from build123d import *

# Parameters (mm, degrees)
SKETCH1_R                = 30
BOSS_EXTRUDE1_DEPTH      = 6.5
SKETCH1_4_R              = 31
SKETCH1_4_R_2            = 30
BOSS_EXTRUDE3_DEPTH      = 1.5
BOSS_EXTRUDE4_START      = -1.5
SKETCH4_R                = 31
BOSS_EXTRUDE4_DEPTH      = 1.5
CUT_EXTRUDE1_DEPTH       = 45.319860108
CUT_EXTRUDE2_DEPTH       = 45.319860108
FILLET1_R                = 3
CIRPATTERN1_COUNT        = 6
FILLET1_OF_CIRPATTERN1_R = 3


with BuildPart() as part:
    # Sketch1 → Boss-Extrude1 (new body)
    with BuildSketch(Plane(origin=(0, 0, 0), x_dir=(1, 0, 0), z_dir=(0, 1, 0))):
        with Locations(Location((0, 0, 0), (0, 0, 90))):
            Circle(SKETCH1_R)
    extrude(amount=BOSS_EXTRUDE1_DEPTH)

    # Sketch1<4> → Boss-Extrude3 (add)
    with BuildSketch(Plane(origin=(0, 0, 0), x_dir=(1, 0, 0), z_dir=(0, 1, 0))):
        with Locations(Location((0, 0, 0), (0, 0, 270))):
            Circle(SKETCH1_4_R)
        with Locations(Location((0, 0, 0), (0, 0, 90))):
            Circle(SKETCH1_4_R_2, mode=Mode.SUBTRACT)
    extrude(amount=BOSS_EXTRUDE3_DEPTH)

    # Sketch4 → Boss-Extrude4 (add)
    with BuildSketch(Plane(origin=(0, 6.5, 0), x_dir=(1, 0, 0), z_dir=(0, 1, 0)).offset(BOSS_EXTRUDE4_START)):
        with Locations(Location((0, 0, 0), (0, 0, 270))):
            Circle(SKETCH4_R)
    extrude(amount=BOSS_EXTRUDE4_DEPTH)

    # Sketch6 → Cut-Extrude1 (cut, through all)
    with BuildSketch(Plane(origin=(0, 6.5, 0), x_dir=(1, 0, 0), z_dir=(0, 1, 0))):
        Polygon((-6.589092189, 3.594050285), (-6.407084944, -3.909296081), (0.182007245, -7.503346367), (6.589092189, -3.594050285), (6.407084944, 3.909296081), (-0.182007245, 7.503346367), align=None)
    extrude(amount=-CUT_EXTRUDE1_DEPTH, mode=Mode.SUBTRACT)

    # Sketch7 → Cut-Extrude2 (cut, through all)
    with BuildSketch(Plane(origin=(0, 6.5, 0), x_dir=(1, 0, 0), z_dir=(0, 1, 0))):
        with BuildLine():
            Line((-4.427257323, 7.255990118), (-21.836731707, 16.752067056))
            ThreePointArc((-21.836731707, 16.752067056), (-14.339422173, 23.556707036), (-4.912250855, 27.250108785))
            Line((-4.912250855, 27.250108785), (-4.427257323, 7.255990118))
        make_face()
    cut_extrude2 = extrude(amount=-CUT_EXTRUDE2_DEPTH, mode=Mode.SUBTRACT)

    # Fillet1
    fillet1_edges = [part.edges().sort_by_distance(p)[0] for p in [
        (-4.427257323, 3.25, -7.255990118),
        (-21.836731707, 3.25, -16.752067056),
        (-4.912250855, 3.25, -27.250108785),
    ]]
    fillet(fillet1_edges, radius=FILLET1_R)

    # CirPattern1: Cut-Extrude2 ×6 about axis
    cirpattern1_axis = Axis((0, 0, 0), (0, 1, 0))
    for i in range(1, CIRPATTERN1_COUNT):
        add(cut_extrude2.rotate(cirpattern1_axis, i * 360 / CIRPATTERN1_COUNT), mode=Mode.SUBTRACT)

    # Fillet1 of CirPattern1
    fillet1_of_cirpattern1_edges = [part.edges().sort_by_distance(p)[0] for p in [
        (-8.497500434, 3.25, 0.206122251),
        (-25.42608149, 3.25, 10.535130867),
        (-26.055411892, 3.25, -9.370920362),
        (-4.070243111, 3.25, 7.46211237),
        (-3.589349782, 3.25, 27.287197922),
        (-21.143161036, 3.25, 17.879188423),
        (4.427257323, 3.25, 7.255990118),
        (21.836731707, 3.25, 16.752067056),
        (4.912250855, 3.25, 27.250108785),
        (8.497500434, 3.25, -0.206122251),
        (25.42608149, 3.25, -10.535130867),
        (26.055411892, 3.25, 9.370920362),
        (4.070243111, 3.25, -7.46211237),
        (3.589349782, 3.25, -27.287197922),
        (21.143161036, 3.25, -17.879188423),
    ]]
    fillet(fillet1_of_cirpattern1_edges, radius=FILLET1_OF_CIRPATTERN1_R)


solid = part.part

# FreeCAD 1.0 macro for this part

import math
import FreeCAD as App
import Part
import Sketcher


def edges_at(feature, points):
    """Names of the edges that pass closest to the given points."""
    edges = feature.Shape.Edges
    near = lambda p: min(range(len(edges)), key=lambda i: edges[i].distToShape(Part.Vertex(*p))[0])
    return sorted({f"Edge{near(p) + 1}" for p in points})


def add_polygon(sketch, points):
    """Adds a closed chain of lines whose ends are joined by coincident constraints."""
    first, n = sketch.GeometryCount, len(points)
    for a, b in zip(points, points[1:] + points[:1]):
        sketch.addGeometry(Part.LineSegment(App.Vector(*a, 0), App.Vector(*b, 0)), False)
    for i in range(n):
        sketch.addConstraint(Sketcher.Constraint("Coincident", first + i, 2, first + (i + 1) % n, 1))

doc = App.newDocument("Part")
body = doc.addObject("PartDesign::Body", "Body")

sketch1 = doc.addObject("Sketcher::SketchObject", "Sketch")
body.addObject(sketch1)
sketch1.AttachmentSupport = (doc.XZ_Plane, [""])
sketch1.MapMode = "FlatFace"
sketch1.addGeometry(Part.Circle(App.Vector(0, 0, 0), App.Vector(0, 0, 1), 30), False)
sketch1.addConstraint([
    Sketcher.Constraint("Coincident", 0, 3, -1, 1),
    Sketcher.Constraint("Diameter", 0, 60.0),
])
pad1 = doc.addObject("PartDesign::Pad", "Pad")
body.addObject(pad1)
pad1.Profile = sketch1
pad1.Length = 6.5
pad1.Reversed = True

sketch2 = doc.addObject("Sketcher::SketchObject", "Sketch001")
body.addObject(sketch2)
sketch2.AttachmentSupport = (doc.XZ_Plane, [""])
sketch2.MapMode = "FlatFace"
sketch2.addGeometry([
    Part.Circle(App.Vector(0, 0, 0), App.Vector(0, 0, 1), 31),
    Part.Circle(App.Vector(0, 0, 0), App.Vector(0, 0, 1), 30),
], False)
sketch2.addConstraint([
    Sketcher.Constraint("Coincident", 0, 3, -1, 1),
    Sketcher.Constraint("Coincident", 1, 3, -1, 1),
    Sketcher.Constraint("Diameter", 0, 62.0),
    Sketcher.Constraint("Diameter", 1, 60.0),
])
pad2 = doc.addObject("PartDesign::Pad", "Pad001")
body.addObject(pad2)
pad2.Profile = sketch2
pad2.Length = 1.5
pad2.Reversed = True

sketch3 = doc.addObject("Sketcher::SketchObject", "Sketch002")
body.addObject(sketch3)
sketch3.AttachmentSupport = (doc.XZ_Plane, [""])
sketch3.MapMode = "FlatFace"
sketch3.AttachmentOffset = App.Placement(App.Vector(0, 0, -5), App.Rotation())
sketch3.addGeometry(Part.Circle(App.Vector(0, 0, 0), App.Vector(0, 0, 1), 31), False)
sketch3.addConstraint([
    Sketcher.Constraint("Coincident", 0, 3, -1, 1),
    Sketcher.Constraint("Diameter", 0, 62.0),
])
pad3 = doc.addObject("PartDesign::Pad", "Pad002")
body.addObject(pad3)
pad3.Profile = sketch3
pad3.Length = 1.5
pad3.Reversed = True

sketch4 = doc.addObject("Sketcher::SketchObject", "Sketch003")
body.addObject(sketch4)
sketch4.AttachmentSupport = (doc.XZ_Plane, [""])
sketch4.MapMode = "FlatFace"
sketch4.AttachmentOffset = App.Placement(App.Vector(0, 0, -6.5), App.Rotation())
add_polygon(sketch4, [(-6.589092, -3.59405), (-6.407085, 3.909296), (0.182007, 7.503346), (6.589092, 3.59405), (6.407085, -3.909296), (-0.182007, -7.503346)])
sketch4.addConstraint([
    Sketcher.Constraint("Symmetric", 0, 2, 3, 2, -1, 1),
    Sketcher.Constraint("Symmetric", 1, 2, 4, 2, -1, 1),
    Sketcher.Constraint("Symmetric", 2, 2, 5, 2, -1, 1),
    Sketcher.Constraint("Equal", 0, 1),
    Sketcher.Constraint("Equal", 1, 2),
    Sketcher.Constraint("DistanceX", 4, 2, 2, 2, 6.771099),
    Sketcher.Constraint("DistanceY", 5, 2, 2, 2, 7.188101),
    Sketcher.Constraint("DistanceY", 0, 2, 1, 2, 3.59405),
    Sketcher.Constraint("DistanceX", 0, 2, 3, 2, 12.81417),
])
pocket1 = doc.addObject("PartDesign::Pocket", "Pocket")
body.addObject(pocket1)
pocket1.Profile = sketch4
pocket1.Type = "ThroughAll"
pocket1.Reversed = True

sketch5 = doc.addObject("Sketcher::SketchObject", "Sketch004")
body.addObject(sketch5)
sketch5.AttachmentSupport = (doc.XZ_Plane, [""])
sketch5.MapMode = "FlatFace"
sketch5.AttachmentOffset = App.Placement(App.Vector(0, 0, -6.5), App.Rotation())
sketch5.addGeometry([
    Part.LineSegment(App.Vector(-21.836732, -16.752067, 0), App.Vector(-4.427257, -7.25599, 0)),
    Part.LineSegment(App.Vector(-4.427257, -7.25599, 0), App.Vector(-4.912251, -27.250109, 0)),
    Part.ArcOfCircle(Part.Circle(App.Vector(0.419827, 0.237506, 0), App.Vector(0, 0, 1), 28), math.radians(-142.64365), math.radians(-100.977959)),
], False)
sketch5.addConstraint([
    Sketcher.Constraint("Coincident", 0, 2, 1, 1),
    Sketcher.Constraint("Coincident", 1, 2, 2, 2),
    Sketcher.Constraint("Coincident", 2, 1, 0, 1),
    Sketcher.Constraint("Radius", 2, 28.0),
    Sketcher.Constraint("Distance", 1, 20.0),
    Sketcher.Constraint("DistanceY", 0, 2, -1, 1, 7.25599),
    Sketcher.Constraint("DistanceX", 1, 2, -1, 1, 4.912251),
    Sketcher.Constraint("DistanceY", 1, 2, -1, 1, 27.250109),
    Sketcher.Constraint("DistanceX", 2, 1, -1, 1, 21.836732),
    Sketcher.Constraint("DistanceX", 1, 2, 2, 3, 5.332078),
])
pocket2 = doc.addObject("PartDesign::Pocket", "Pocket001")
body.addObject(pocket2)
pocket2.Profile = sketch5
pocket2.Type = "ThroughAll"
pocket2.Reversed = True
doc.recompute()

fillet = doc.addObject("PartDesign::Fillet", "Fillet")
body.addObject(fillet)
fillet.Base = (pocket2, edges_at(pocket2, [(-4.427, 3.25, -7.256), (-21.837, 3.25, -16.752), (-4.912, 3.25, -27.25)]))
fillet.Radius = 3
doc.recompute()

polarpattern = doc.addObject("PartDesign::PolarPattern", "PolarPattern")
body.addObject(polarpattern)
polarpattern.Originals = [pocket2]
polarpattern.Axis = (doc.Y_Axis, [""])
polarpattern.Angle = 360
polarpattern.Occurrences = 6
body.Tip = polarpattern
doc.recompute()

fillet2 = doc.addObject("PartDesign::Fillet", "Fillet001")
body.addObject(fillet2)
fillet2.Base = (polarpattern, edges_at(polarpattern, [
    (-8.498, 3.25, 0.206),
    (-25.426, 3.25, 10.535),
    (-26.055, 3.25, -9.371),
    (-4.07, 3.25, 7.462),
    (-3.589, 3.25, 27.287),
    (-21.143, 3.25, 17.879),
    (4.427, 3.25, 7.256),
    (21.837, 3.25, 16.752),
    (4.912, 3.25, 27.25),
    (8.498, 3.25, -0.206),
    (25.426, 3.25, -10.535),
    (26.055, 3.25, 9.371),
    (4.07, 3.25, -7.462),
    (3.589, 3.25, -27.287),
    (21.143, 3.25, -17.879),
]))
fillet2.Radius = 3

doc.recompute()
